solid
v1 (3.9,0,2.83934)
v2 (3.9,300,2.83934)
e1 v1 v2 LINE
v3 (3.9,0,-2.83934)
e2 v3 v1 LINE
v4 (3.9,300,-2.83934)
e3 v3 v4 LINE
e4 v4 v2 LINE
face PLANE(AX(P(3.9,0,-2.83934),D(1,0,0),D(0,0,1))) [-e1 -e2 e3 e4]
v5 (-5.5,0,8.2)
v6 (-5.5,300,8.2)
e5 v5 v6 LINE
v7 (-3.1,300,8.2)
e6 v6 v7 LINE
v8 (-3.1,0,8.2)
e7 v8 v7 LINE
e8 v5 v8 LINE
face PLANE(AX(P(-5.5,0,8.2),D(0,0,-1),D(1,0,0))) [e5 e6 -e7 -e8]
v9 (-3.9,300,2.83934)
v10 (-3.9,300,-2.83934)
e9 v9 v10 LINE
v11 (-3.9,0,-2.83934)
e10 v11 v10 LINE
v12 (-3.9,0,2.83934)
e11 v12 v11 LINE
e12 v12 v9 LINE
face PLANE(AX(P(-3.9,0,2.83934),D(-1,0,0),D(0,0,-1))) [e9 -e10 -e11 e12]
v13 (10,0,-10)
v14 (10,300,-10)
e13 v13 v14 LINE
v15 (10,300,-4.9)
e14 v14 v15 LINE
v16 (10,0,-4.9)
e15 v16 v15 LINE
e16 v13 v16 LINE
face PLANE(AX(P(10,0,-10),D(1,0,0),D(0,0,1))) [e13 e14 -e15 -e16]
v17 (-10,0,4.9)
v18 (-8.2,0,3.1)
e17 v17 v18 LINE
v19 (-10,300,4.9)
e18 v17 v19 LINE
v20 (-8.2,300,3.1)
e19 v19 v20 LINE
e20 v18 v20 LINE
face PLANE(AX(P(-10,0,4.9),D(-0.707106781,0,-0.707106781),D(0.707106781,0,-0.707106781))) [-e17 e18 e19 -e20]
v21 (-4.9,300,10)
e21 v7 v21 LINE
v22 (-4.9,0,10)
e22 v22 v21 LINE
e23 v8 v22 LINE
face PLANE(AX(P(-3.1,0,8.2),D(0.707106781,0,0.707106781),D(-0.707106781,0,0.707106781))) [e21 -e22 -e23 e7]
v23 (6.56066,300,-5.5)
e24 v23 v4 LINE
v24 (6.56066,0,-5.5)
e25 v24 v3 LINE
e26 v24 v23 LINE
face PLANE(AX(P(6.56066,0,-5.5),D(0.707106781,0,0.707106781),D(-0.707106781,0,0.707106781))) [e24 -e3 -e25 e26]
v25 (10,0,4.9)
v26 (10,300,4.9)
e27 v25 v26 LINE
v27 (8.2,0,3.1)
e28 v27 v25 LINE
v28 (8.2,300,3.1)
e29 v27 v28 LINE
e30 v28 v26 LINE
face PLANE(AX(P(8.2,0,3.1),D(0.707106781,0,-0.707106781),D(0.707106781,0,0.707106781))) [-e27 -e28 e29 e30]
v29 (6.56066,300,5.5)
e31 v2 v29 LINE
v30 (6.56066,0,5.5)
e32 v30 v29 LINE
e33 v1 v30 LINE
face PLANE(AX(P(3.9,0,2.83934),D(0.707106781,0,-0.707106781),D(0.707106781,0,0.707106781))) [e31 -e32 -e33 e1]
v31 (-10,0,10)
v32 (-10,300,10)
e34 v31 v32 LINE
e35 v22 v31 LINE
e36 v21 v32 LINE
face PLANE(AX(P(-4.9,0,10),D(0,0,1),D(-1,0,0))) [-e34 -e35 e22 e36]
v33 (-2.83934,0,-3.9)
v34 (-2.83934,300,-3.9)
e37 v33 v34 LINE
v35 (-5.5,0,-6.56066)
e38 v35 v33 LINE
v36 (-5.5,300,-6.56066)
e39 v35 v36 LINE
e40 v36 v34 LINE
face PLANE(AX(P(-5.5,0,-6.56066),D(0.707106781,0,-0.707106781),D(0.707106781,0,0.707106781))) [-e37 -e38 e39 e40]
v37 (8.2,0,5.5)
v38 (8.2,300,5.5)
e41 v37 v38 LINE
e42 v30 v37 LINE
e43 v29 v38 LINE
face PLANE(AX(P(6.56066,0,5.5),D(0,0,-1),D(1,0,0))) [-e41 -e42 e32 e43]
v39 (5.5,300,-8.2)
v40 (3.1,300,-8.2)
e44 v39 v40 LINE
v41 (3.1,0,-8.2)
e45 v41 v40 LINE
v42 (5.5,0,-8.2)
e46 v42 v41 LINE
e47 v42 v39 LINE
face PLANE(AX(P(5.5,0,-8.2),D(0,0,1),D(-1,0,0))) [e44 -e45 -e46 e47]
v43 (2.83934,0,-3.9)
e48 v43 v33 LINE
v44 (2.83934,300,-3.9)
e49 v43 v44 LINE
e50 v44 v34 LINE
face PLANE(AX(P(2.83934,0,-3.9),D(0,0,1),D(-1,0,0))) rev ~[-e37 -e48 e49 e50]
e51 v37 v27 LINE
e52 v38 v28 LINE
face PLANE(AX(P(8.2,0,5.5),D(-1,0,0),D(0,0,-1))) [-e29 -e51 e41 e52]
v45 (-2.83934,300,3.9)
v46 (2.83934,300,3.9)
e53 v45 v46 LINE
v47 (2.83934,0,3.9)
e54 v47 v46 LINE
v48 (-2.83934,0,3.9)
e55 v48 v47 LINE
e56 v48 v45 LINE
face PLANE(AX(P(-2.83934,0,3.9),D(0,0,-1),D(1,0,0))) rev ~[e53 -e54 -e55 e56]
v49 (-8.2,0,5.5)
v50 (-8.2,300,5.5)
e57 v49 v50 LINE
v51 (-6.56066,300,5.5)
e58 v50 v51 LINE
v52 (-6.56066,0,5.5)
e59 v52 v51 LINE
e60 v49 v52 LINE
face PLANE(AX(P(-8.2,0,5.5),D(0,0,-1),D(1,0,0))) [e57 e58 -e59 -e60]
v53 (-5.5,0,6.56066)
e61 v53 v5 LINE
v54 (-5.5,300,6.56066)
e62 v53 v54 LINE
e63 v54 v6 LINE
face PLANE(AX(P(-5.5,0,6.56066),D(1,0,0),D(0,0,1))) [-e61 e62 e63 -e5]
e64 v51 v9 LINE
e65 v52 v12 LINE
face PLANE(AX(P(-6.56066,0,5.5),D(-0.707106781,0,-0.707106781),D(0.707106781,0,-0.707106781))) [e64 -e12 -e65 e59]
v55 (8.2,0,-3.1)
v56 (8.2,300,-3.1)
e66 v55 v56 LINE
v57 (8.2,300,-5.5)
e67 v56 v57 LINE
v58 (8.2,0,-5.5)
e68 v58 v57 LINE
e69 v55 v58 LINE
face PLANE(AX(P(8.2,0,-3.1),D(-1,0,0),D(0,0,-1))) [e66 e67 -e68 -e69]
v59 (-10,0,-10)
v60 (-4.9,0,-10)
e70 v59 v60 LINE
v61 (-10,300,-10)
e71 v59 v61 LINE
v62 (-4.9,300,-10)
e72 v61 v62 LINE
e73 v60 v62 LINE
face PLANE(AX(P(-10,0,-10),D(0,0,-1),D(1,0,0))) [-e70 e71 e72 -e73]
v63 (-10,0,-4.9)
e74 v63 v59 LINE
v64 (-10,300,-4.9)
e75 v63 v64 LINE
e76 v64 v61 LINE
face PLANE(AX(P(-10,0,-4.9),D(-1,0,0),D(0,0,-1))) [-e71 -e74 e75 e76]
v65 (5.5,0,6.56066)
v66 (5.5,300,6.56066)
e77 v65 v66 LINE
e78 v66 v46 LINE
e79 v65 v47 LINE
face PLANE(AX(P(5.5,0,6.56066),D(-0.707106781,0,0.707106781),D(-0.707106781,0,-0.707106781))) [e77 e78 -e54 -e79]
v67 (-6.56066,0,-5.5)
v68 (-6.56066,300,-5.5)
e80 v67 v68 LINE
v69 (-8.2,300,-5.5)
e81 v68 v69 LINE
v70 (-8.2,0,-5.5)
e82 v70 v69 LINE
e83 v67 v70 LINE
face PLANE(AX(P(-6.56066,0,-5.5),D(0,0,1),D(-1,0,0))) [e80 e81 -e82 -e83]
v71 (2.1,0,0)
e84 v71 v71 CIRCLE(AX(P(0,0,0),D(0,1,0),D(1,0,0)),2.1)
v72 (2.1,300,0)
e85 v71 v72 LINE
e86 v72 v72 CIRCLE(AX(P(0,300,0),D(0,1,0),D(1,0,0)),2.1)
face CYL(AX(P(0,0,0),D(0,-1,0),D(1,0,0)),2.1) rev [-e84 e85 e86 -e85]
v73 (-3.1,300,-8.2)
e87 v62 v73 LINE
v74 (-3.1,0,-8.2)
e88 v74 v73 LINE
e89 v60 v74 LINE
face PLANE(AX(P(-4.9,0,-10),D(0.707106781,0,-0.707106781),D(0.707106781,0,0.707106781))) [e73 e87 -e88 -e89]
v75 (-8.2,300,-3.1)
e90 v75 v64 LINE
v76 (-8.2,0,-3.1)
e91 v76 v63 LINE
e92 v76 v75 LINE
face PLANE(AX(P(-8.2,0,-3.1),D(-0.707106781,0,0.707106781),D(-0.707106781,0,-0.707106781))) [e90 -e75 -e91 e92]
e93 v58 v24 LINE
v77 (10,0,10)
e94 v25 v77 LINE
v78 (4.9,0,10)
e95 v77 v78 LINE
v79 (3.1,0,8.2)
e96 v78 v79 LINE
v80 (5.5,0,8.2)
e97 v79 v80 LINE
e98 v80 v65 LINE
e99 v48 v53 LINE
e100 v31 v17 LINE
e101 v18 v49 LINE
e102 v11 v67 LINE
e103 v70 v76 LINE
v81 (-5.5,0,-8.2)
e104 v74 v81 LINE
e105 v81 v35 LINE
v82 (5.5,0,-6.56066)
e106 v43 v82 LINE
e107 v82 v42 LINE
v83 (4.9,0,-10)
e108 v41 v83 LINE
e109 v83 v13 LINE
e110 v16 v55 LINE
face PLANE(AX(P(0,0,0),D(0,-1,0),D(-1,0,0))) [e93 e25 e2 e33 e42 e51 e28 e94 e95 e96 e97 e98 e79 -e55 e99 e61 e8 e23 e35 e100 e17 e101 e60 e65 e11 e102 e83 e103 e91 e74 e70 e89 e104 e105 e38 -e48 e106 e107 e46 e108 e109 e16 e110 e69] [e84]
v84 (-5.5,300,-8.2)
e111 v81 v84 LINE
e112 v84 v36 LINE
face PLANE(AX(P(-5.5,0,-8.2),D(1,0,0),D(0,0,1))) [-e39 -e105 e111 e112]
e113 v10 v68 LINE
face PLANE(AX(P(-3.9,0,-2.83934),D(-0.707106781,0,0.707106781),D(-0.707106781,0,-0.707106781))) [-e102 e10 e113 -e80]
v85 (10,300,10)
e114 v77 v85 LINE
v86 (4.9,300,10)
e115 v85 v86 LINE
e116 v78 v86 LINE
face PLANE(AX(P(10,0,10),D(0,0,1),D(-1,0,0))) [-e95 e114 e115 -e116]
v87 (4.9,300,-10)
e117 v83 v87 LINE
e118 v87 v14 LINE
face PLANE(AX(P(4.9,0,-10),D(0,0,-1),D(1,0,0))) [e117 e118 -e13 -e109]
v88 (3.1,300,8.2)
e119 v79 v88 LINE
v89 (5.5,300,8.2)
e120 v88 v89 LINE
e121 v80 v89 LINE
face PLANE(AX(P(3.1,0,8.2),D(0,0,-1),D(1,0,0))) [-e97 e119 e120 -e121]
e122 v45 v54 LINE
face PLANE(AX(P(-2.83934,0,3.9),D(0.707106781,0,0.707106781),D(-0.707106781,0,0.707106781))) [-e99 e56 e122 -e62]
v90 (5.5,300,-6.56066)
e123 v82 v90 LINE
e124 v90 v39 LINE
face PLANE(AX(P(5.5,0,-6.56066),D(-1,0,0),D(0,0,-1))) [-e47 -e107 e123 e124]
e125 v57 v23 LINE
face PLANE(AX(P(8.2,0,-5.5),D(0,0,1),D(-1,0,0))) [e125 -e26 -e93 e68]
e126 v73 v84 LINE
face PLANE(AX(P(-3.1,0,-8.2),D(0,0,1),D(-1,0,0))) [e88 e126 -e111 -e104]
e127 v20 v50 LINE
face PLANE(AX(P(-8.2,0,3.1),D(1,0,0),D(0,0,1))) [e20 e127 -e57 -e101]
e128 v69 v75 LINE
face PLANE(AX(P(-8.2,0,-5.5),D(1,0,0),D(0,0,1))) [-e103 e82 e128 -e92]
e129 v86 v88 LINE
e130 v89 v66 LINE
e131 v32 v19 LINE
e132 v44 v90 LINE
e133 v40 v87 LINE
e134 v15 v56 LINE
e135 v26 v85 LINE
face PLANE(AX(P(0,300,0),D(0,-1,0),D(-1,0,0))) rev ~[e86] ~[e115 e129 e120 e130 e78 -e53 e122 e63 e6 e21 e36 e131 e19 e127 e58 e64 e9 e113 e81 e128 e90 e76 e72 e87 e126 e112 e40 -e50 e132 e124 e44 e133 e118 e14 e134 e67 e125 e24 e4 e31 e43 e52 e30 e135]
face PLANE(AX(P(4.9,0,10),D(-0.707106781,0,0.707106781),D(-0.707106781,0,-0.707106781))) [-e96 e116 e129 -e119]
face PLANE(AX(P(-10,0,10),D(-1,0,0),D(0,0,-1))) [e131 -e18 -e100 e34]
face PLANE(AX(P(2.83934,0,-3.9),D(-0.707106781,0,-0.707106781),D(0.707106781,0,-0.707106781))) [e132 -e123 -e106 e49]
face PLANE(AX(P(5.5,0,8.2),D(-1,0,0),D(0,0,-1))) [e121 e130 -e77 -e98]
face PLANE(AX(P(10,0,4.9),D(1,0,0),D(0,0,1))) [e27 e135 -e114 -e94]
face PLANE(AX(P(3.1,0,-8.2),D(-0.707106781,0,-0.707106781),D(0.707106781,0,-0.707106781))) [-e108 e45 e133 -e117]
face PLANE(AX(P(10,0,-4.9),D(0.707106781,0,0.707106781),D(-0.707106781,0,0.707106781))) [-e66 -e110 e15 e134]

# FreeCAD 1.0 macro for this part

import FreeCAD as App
import Part
import Sketcher
Q = App.Units.Quantity

doc = App.newDocument("Part")
body = doc.addObject("PartDesign::Body", "Body")

# Sketch on XZ plane
sketch1 = body.newObject("Sketcher::SketchObject", "Sketch")
sketch1.AttachmentSupport = (doc.getObject("XZ_Plane"), [""])
sketch1.MapMode = "FlatFace"
sketch1.addGeometry([
    Part.LineSegment(App.Vector(-4.9, -10, 0), App.Vector(-10, -10, 0)),  # 0
    Part.LineSegment(App.Vector(-10, -10, 0), App.Vector(-10, -4.9, 0)),  # 1
    Part.LineSegment(App.Vector(-10, -4.9, 0), App.Vector(-8.2, -3.1, 0)),  # 2
    Part.LineSegment(App.Vector(-8.2, -3.1, 0), App.Vector(-8.2, -5.5, 0)),  # 3
    Part.LineSegment(App.Vector(-8.2, -5.5, 0), App.Vector(-6.6, -5.5, 0)),  # 4
    Part.LineSegment(App.Vector(-6.6, -5.5, 0), App.Vector(-3.9, -2.8, 0)),  # 5
    Part.LineSegment(App.Vector(-3.9, -2.8, 0), App.Vector(-3.9, 2.8, 0)),  # 6
    Part.LineSegment(App.Vector(-3.9, 2.8, 0), App.Vector(-6.6, 5.5, 0)),  # 7
    Part.LineSegment(App.Vector(-6.6, 5.5, 0), App.Vector(-8.2, 5.5, 0)),  # 8
    Part.LineSegment(App.Vector(-8.2, 5.5, 0), App.Vector(-8.2, 3.1, 0)),  # 9
    Part.LineSegment(App.Vector(-8.2, 3.1, 0), App.Vector(-10, 4.9, 0)),  # 10
    Part.LineSegment(App.Vector(-10, 4.9, 0), App.Vector(-10, 10, 0)),  # 11
    Part.LineSegment(App.Vector(-10, 10, 0), App.Vector(-4.9, 10, 0)),  # 12
    Part.LineSegment(App.Vector(-4.9, 10, 0), App.Vector(-3.1, 8.2, 0)),  # 13
    Part.LineSegment(App.Vector(-3.1, 8.2, 0), App.Vector(-5.5, 8.2, 0)),  # 14
    Part.LineSegment(App.Vector(-5.5, 8.2, 0), App.Vector(-5.5, 6.6, 0)),  # 15
    Part.LineSegment(App.Vector(-5.5, 6.6, 0), App.Vector(-2.8, 3.9, 0)),  # 16
    Part.LineSegment(App.Vector(-2.8, 3.9, 0), App.Vector(2.8, 3.9, 0)),  # 17
    Part.LineSegment(App.Vector(2.8, 3.9, 0), App.Vector(5.5, 6.6, 0)),  # 18
    Part.LineSegment(App.Vector(5.5, 6.6, 0), App.Vector(5.5, 8.2, 0)),  # 19
    Part.LineSegment(App.Vector(5.5, 8.2, 0), App.Vector(3.1, 8.2, 0)),  # 20
    Part.LineSegment(App.Vector(3.1, 8.2, 0), App.Vector(4.9, 10, 0)),  # 21
    Part.LineSegment(App.Vector(4.9, 10, 0), App.Vector(10, 10, 0)),  # 22
    Part.LineSegment(App.Vector(10, 10, 0), App.Vector(10, 4.9, 0)),  # 23
    Part.LineSegment(App.Vector(10, 4.9, 0), App.Vector(8.2, 3.1, 0)),  # 24
    Part.LineSegment(App.Vector(8.2, 3.1, 0), App.Vector(8.2, 5.5, 0)),  # 25
    Part.LineSegment(App.Vector(8.2, 5.5, 0), App.Vector(6.6, 5.5, 0)),  # 26
    Part.LineSegment(App.Vector(6.6, 5.5, 0), App.Vector(3.9, 2.8, 0)),  # 27
    Part.LineSegment(App.Vector(3.9, 2.8, 0), App.Vector(3.9, -2.8, 0)),  # 28
    Part.LineSegment(App.Vector(3.9, -2.8, 0), App.Vector(6.6, -5.5, 0)),  # 29
    Part.LineSegment(App.Vector(6.6, -5.5, 0), App.Vector(8.2, -5.5, 0)),  # 30
    Part.LineSegment(App.Vector(8.2, -5.5, 0), App.Vector(8.2, -3.1, 0)),  # 31
    Part.LineSegment(App.Vector(8.2, -3.1, 0), App.Vector(10, -4.9, 0)),  # 32
    Part.LineSegment(App.Vector(10, -4.9, 0), App.Vector(10, -10, 0)),  # 33
    Part.LineSegment(App.Vector(10, -10, 0), App.Vector(4.9, -10, 0)),  # 34
    Part.LineSegment(App.Vector(4.9, -10, 0), App.Vector(3.1, -8.2, 0)),  # 35
    Part.LineSegment(App.Vector(3.1, -8.2, 0), App.Vector(5.5, -8.2, 0)),  # 36
    Part.LineSegment(App.Vector(5.5, -8.2, 0), App.Vector(5.5, -6.6, 0)),  # 37
    Part.LineSegment(App.Vector(5.5, -6.6, 0), App.Vector(2.8, -3.9, 0)),  # 38
    Part.LineSegment(App.Vector(2.8, -3.9, 0), App.Vector(-2.8, -3.9, 0)),  # 39
    Part.LineSegment(App.Vector(-2.8, -3.9, 0), App.Vector(-5.5, -6.6, 0)),  # 40
    Part.LineSegment(App.Vector(-5.5, -6.6, 0), App.Vector(-5.5, -8.2, 0)),  # 41
    Part.LineSegment(App.Vector(-5.5, -8.2, 0), App.Vector(-3.1, -8.2, 0)),  # 42
    Part.LineSegment(App.Vector(-3.1, -8.2, 0), App.Vector(-4.9, -10, 0)),  # 43
    Part.Circle(App.Vector(0, 0, 0), App.Vector(0, 0, 1), 2.1),  # 44
], False)
sketch1.addConstraint([
    Sketcher.Constraint("Coincident", 0, 2, 1, 1),
    Sketcher.Constraint("Coincident", 1, 2, 2, 1),
    Sketcher.Constraint("Coincident", 2, 2, 3, 1),
    Sketcher.Constraint("Coincident", 3, 2, 4, 1),
    Sketcher.Constraint("Coincident", 4, 2, 5, 1),
    Sketcher.Constraint("Coincident", 5, 2, 6, 1),
    Sketcher.Constraint("Coincident", 6, 2, 7, 1),
    Sketcher.Constraint("Coincident", 7, 2, 8, 1),
    Sketcher.Constraint("Coincident", 8, 2, 9, 1),
    Sketcher.Constraint("Coincident", 9, 2, 10, 1),
    Sketcher.Constraint("Coincident", 10, 2, 11, 1),
    Sketcher.Constraint("Coincident", 11, 2, 12, 1),
    Sketcher.Constraint("Coincident", 12, 2, 13, 1),
    Sketcher.Constraint("Coincident", 13, 2, 14, 1),
    Sketcher.Constraint("Coincident", 14, 2, 15, 1),
    Sketcher.Constraint("Coincident", 15, 2, 16, 1),
    Sketcher.Constraint("Coincident", 16, 2, 17, 1),
    Sketcher.Constraint("Coincident", 17, 2, 18, 1),
    Sketcher.Constraint("Coincident", 18, 2, 19, 1),
    Sketcher.Constraint("Coincident", 19, 2, 20, 1),
    Sketcher.Constraint("Coincident", 20, 2, 21, 1),
    Sketcher.Constraint("Coincident", 21, 2, 22, 1),
    Sketcher.Constraint("Coincident", 22, 2, 23, 1),
    Sketcher.Constraint("Coincident", 23, 2, 24, 1),
    Sketcher.Constraint("Coincident", 24, 2, 25, 1),
    Sketcher.Constraint("Coincident", 25, 2, 26, 1),
    Sketcher.Constraint("Coincident", 26, 2, 27, 1),
    Sketcher.Constraint("Coincident", 27, 2, 28, 1),
    Sketcher.Constraint("Coincident", 28, 2, 29, 1),
    Sketcher.Constraint("Coincident", 29, 2, 30, 1),
    Sketcher.Constraint("Coincident", 30, 2, 31, 1),
    Sketcher.Constraint("Coincident", 31, 2, 32, 1),
    Sketcher.Constraint("Coincident", 32, 2, 33, 1),
    Sketcher.Constraint("Coincident", 33, 2, 34, 1),
    Sketcher.Constraint("Coincident", 34, 2, 35, 1),
    Sketcher.Constraint("Coincident", 35, 2, 36, 1),
    Sketcher.Constraint("Coincident", 36, 2, 37, 1),
    Sketcher.Constraint("Coincident", 37, 2, 38, 1),
    Sketcher.Constraint("Coincident", 38, 2, 39, 1),
    Sketcher.Constraint("Coincident", 39, 2, 40, 1),
    Sketcher.Constraint("Coincident", 40, 2, 41, 1),
    Sketcher.Constraint("Coincident", 41, 2, 42, 1),
    Sketcher.Constraint("Coincident", 42, 2, 43, 1),
    Sketcher.Constraint("Coincident", 43, 2, 0, 1),
    Sketcher.Constraint("Horizontal", 0),
    Sketcher.Constraint("Vertical", 1),
    Sketcher.Constraint("Vertical", 3),
    Sketcher.Constraint("Horizontal", 4),
    Sketcher.Constraint("Vertical", 6),
    Sketcher.Constraint("Horizontal", 8),
    Sketcher.Constraint("Vertical", 9),
    Sketcher.Constraint("Vertical", 11),
    Sketcher.Constraint("Horizontal", 12),
    Sketcher.Constraint("Horizontal", 14),
    Sketcher.Constraint("Vertical", 15),
    Sketcher.Constraint("Horizontal", 17),
    Sketcher.Constraint("Vertical", 19),
    Sketcher.Constraint("Horizontal", 20),
    Sketcher.Constraint("Horizontal", 22),
    Sketcher.Constraint("Vertical", 23),
    Sketcher.Constraint("Vertical", 25),
    Sketcher.Constraint("Horizontal", 26),
    Sketcher.Constraint("Vertical", 28),
    Sketcher.Constraint("Horizontal", 30),
    Sketcher.Constraint("Vertical", 31),
    Sketcher.Constraint("Vertical", 33),
    Sketcher.Constraint("Horizontal", 34),
    Sketcher.Constraint("Horizontal", 36),
    Sketcher.Constraint("Vertical", 37),
    Sketcher.Constraint("Horizontal", 39),
    Sketcher.Constraint("Vertical", 41),
    Sketcher.Constraint("Horizontal", 42),
    Sketcher.Constraint("Coincident", 44, 3, -1, 1),
    Sketcher.Constraint("Symmetric", 0, 2, 22, 2, -1, 1),
    Sketcher.Constraint("Symmetric", 2, 2, 24, 2, -1, 1),
    Sketcher.Constraint("Symmetric", 4, 2, 26, 2, -1, 1),
    Sketcher.Constraint("Symmetric", 5, 2, 27, 2, -1, 1),
    Sketcher.Constraint("Symmetric", 7, 2, 29, 2, -1, 1),
    Sketcher.Constraint("Symmetric", 9, 2, 31, 2, -1, 1),
    Sketcher.Constraint("Symmetric", 10, 2, 32, 2, -1, 1),
    Sketcher.Constraint("Symmetric", 12, 2, 34, 2, -1, 1),
    Sketcher.Constraint("Symmetric", 13, 2, 35, 2, -1, 1),
    Sketcher.Constraint("Symmetric", 15, 2, 37, 2, -1, 1),
    Sketcher.Constraint("Symmetric", 16, 2, 38, 2, -1, 1),
    Sketcher.Constraint("Symmetric", 18, 2, 40, 2, -1, 1),
    Sketcher.Constraint("Symmetric", 20, 2, 42, 2, -1, 1),
    Sketcher.Constraint("Symmetric", 15, 2, 18, 2, -2),
    Sketcher.Constraint("Symmetric", 13, 2, 20, 2, -2),
    Sketcher.Constraint("Symmetric", 12, 2, 21, 2, -2),
    Sketcher.Constraint("Symmetric", 10, 2, 23, 2, -2),
    Sketcher.Constraint("Symmetric", 9, 2, 24, 2, -2),
    Sketcher.Constraint("Symmetric", 7, 2, 26, 2, -2),
    Sketcher.Constraint("Parallel", 2, 5),
    Sketcher.Constraint("Perpendicular", 5, 7),
    Sketcher.Constraint("Parallel", 7, 10),
    Sketcher.Constraint("Parallel", 10, 13),
    Sketcher.Constraint("Parallel", 13, 16),
    Sketcher.Constraint("Perpendicular", 16, 18),
    Sketcher.Constraint("Parallel", 18, 21),
    Sketcher.Constraint("Perpendicular", 27, 29),
    Sketcher.Constraint("Perpendicular", 38, 40),
    Sketcher.Constraint("Parallel", 40, 43),
    Sketcher.Constraint("Equal", 34, 1),
    Sketcher.Constraint("Equal", 42, 3),
    Sketcher.Constraint("Equal", 39, 6),
    Sketcher.Constraint("Equal", 30, 15),
    Sketcher.Constraint("Equal", 10, 13),
    Sketcher.Constraint("Equal", 7, 16),
    Sketcher.Constraint("Diameter", 44, Q("4.2 mm")),
    Sketcher.Constraint("DistanceX", 0, 2, 0, 1, Q("5.1 mm")),
    Sketcher.Constraint("DistanceX", 14, 2, 14, 1, Q("2.4 mm")),
    Sketcher.Constraint("DistanceX", 0, 2, -1, 1, Q("10 mm")),
    Sketcher.Constraint("DistanceY", 2, 2, 10, 2, Q("8 mm")),
    Sketcher.Constraint("DistanceX", 12, 2, 6, 2, Q("1 mm")),
    Sketcher.Constraint("DistanceX", 4, 1, 4, 2, Q("1.63934 mm")),
])
pad1 = body.newObject("PartDesign::Pad", "Pad")
pad1.Profile = sketch1
pad1.Length = 300
pad1.Reversed = True

doc.recompute()
